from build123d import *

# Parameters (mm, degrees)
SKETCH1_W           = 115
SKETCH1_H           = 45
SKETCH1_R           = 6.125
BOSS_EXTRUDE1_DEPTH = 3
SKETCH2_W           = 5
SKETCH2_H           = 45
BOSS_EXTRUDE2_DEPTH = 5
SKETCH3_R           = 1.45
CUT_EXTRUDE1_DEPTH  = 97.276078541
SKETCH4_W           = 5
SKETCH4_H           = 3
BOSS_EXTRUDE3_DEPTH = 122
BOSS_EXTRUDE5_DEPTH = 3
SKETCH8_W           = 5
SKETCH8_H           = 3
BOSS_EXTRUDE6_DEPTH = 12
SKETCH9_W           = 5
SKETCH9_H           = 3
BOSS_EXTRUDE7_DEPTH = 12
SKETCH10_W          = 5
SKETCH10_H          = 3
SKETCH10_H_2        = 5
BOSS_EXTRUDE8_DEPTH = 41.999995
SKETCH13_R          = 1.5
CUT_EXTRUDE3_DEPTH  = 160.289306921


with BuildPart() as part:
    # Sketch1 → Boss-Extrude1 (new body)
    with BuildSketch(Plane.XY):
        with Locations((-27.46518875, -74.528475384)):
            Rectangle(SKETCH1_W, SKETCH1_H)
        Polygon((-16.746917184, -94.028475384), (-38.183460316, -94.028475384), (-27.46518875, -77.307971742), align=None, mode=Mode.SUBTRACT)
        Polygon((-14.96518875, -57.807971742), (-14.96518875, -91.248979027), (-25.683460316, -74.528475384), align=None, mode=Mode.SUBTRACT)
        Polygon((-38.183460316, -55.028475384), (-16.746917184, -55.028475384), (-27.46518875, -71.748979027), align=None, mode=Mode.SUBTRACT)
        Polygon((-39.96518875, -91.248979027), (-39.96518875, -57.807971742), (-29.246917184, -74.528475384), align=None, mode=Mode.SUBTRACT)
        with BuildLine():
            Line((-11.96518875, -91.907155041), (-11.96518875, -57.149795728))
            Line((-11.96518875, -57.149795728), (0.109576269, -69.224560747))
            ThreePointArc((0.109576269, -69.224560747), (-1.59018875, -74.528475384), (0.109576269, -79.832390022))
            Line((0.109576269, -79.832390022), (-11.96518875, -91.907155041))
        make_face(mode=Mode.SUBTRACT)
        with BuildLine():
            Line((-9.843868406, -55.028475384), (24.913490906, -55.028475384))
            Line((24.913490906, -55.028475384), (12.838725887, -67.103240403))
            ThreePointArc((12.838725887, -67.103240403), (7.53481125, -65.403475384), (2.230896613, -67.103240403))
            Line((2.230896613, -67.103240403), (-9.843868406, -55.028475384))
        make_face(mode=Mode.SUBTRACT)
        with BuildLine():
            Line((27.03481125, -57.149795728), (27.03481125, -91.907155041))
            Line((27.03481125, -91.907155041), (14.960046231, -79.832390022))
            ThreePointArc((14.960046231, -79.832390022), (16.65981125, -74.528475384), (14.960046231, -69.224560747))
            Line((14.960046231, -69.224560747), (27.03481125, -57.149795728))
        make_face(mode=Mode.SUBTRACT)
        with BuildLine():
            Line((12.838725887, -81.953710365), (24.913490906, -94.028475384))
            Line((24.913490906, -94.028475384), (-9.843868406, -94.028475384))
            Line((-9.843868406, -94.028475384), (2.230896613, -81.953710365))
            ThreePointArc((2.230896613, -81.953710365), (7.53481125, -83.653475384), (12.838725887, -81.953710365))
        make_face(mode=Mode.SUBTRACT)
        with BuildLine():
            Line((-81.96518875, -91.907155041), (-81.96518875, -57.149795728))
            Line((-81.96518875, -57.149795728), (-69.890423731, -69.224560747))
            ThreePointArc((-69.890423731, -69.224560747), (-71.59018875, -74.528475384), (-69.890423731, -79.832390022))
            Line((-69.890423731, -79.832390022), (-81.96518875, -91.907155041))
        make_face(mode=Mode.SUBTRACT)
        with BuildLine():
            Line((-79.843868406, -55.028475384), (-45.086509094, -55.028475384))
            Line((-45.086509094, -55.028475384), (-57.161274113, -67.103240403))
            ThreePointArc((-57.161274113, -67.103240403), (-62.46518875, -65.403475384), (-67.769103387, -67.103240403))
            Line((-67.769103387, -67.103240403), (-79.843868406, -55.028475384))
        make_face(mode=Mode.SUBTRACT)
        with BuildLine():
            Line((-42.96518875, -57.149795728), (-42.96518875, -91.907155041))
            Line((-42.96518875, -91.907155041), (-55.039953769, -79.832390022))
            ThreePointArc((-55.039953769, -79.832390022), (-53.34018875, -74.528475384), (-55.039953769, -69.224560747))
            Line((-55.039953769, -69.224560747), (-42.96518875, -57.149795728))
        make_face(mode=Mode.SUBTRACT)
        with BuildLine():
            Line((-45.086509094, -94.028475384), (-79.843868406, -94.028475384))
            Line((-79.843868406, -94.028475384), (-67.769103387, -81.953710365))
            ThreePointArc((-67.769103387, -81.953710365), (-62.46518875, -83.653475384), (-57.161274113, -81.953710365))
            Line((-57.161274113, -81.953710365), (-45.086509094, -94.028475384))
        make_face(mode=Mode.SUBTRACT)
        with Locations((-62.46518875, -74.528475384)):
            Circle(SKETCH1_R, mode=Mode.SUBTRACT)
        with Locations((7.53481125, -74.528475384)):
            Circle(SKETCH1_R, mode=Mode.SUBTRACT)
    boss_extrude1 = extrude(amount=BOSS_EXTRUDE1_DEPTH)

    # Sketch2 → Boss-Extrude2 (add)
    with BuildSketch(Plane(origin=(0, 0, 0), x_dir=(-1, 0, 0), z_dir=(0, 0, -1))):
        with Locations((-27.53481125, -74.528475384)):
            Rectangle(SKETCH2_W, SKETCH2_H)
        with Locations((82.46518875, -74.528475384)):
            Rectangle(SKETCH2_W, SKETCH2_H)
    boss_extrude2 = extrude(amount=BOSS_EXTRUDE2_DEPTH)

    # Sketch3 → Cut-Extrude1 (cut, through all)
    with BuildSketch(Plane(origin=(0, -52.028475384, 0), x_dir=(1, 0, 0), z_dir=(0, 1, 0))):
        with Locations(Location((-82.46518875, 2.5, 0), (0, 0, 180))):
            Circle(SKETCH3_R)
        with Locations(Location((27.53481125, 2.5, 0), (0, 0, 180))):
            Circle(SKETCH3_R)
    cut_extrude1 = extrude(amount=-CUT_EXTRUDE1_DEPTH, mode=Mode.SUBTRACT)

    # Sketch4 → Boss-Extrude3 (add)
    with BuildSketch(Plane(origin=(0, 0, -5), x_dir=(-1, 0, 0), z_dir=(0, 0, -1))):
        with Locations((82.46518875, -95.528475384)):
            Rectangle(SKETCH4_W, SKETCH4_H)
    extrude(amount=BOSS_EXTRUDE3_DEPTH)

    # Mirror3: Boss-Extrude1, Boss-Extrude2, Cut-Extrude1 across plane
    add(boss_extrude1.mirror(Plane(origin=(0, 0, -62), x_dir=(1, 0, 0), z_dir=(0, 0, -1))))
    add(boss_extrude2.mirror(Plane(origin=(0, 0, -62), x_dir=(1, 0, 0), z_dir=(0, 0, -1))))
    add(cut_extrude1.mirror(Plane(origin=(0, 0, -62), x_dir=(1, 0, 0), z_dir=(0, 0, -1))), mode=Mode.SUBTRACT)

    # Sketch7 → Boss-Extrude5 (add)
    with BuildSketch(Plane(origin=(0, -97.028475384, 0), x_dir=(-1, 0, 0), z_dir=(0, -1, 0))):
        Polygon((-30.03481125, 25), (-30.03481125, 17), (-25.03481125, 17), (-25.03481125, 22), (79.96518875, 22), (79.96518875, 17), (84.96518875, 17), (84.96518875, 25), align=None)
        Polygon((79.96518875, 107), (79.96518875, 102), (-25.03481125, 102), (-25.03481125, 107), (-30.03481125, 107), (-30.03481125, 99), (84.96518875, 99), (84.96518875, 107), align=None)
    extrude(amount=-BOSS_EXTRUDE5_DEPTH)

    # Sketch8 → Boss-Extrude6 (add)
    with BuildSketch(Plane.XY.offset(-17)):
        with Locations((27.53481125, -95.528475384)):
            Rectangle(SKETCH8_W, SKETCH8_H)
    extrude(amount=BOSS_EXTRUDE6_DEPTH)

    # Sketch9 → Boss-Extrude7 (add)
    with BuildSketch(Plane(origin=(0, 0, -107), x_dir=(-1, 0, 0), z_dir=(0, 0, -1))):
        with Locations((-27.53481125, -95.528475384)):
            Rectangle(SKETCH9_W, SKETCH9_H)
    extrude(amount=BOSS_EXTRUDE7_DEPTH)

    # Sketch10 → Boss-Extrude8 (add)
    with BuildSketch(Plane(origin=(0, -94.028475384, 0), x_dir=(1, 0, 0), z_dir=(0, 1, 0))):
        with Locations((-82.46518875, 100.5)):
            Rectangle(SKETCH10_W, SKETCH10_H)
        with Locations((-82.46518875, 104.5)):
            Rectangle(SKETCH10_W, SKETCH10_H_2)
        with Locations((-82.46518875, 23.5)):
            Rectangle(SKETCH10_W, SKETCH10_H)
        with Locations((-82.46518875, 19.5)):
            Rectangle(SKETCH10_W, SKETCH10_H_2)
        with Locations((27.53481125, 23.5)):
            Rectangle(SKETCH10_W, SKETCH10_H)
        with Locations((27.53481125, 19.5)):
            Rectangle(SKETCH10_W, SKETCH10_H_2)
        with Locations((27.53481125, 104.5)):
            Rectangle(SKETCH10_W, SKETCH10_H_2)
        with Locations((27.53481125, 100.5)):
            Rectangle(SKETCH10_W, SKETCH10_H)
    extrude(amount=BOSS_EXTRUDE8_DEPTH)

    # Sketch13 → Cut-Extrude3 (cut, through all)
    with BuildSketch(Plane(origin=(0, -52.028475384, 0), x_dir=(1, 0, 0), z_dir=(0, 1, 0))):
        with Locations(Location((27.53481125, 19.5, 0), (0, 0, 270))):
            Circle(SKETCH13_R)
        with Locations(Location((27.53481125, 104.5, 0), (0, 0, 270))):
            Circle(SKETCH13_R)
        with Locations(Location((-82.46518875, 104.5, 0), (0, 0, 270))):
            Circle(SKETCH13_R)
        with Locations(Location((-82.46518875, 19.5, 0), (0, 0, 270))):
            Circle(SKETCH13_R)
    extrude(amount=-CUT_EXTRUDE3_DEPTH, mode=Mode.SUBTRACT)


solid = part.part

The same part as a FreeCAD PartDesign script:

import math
import FreeCAD as App
import Part
import Sketcher

V = App.Vector


def add_polygon(sketch, points):
    """Adds a closed chain of lines whose ends are joined by coincident constraints."""
    first, n = sketch.GeometryCount, len(points)
    for a, b in zip(points, points[1:] + points[:1]):
        sketch.addGeometry(Part.LineSegment(App.Vector(*a, 0), App.Vector(*b, 0)), False)
    for i in range(n):
        sketch.addConstraint(Sketcher.Constraint("Coincident", first + i, 2, first + (i + 1) % n, 1))

doc = App.newDocument("Part")
body = doc.addObject("PartDesign::Body", "Body")

sketch1 = doc.addObject("Sketcher::SketchObject", "Sketch")
body.addObject(sketch1)
sketch1.AttachmentSupport = (doc.XY_Plane, [""])
sketch1.MapMode = "FlatFace"
add_polygon(sketch1, [(-85, -52), (-85, -97), (30, -97), (30, -52)])
sketch1.addGeometry(Part.LineSegment(V(-57, -82, 0), V(-45, -94, 0)), False)
sketch1.addGeometry(Part.LineSegment(V(-45, -94, 0), V(-80, -94, 0)), False)
sketch1.addGeometry(Part.LineSegment(V(-80, -94, 0), V(-68, -82, 0)), False)
sketch1.addGeometry(Part.ArcOfCircle(Part.Circle(V(-62, -75, 0), V(0, 0, 1), 9), math.radians(-126), math.radians(-54)), False)
sketch1.addGeometry(Part.LineSegment(V(-70, -80, 0), V(-82, -92, 0)), False)
sketch1.addGeometry(Part.LineSegment(V(-82, -92, 0), V(-82, -57, 0)), False)
sketch1.addGeometry(Part.LineSegment(V(-82, -57, 0), V(-70, -69, 0)), False)
sketch1.addGeometry(Part.ArcOfCircle(Part.Circle(V(-62, -75, 0), V(0, 0, 1), 9), math.radians(144), math.radians(216)), False)
sketch1.addGeometry(Part.Circle(V(-62, -75, 0), V(0, 0, 1), 6), False)
sketch1.addGeometry(Part.LineSegment(V(-55, -69, 0), V(-43, -57, 0)), False)
sketch1.addGeometry(Part.LineSegment(V(-43, -57, 0), V(-43, -92, 0)), False)
sketch1.addGeometry(Part.LineSegment(V(-43, -92, 0), V(-55, -80, 0)), False)
sketch1.addGeometry(Part.ArcOfCircle(Part.Circle(V(-62, -75, 0), V(0, 0, 1), 9), math.radians(-36), math.radians(36)), False)
add_polygon(sketch1, [(-29, -75), (-40, -91), (-40, -58)])
add_polygon(sketch1, [(-27, -77), (-17, -94), (-38, -94)])
sketch1.addGeometry(Part.ArcOfCircle(Part.Circle(V(8, -75, 0), V(0, 0, 1), 9), math.radians(-126), math.radians(-54)), False)
sketch1.addGeometry(Part.LineSegment(V(13, -82, 0), V(25, -94, 0)), False)
sketch1.addGeometry(Part.LineSegment(V(25, -94, 0), V(-10, -94, 0)), False)
sketch1.addGeometry(Part.LineSegment(V(-10, -94, 0), V(2, -82, 0)), False)
add_polygon(sketch1, [(-26, -75), (-15, -58), (-15, -91)])
sketch1.addGeometry(Part.LineSegment(V(0, -80, 0), V(-12, -92, 0)), False)
sketch1.addGeometry(Part.LineSegment(V(-12, -92, 0), V(-12, -57, 0)), False)
sketch1.addGeometry(Part.LineSegment(V(-12, -57, 0), V(0, -69, 0)), False)
sketch1.addGeometry(Part.ArcOfCircle(Part.Circle(V(8, -75, 0), V(0, 0, 1), 9), math.radians(144), math.radians(216)), False)
sketch1.addGeometry(Part.Circle(V(8, -75, 0), V(0, 0, 1), 6), False)
sketch1.addGeometry(Part.LineSegment(V(15, -69, 0), V(27, -57, 0)), False)
sketch1.addGeometry(Part.LineSegment(V(27, -57, 0), V(27, -92, 0)), False)
sketch1.addGeometry(Part.LineSegment(V(27, -92, 0), V(15, -80, 0)), False)
sketch1.addGeometry(Part.ArcOfCircle(Part.Circle(V(8, -75, 0), V(0, 0, 1), 9), math.radians(-36), math.radians(36)), False)
sketch1.addGeometry(Part.LineSegment(V(-68, -67, 0), V(-80, -55, 0)), False)
sketch1.addGeometry(Part.LineSegment(V(-80, -55, 0), V(-45, -55, 0)), False)
sketch1.addGeometry(Part.LineSegment(V(-45, -55, 0), V(-57, -67, 0)), False)
sketch1.addGeometry(Part.ArcOfCircle(Part.Circle(V(-62, -75, 0), V(0, 0, 1), 9), math.radians(54), math.radians(126)), False)
add_polygon(sketch1, [(-27, -72), (-38, -55), (-17, -55)])
sketch1.addGeometry(Part.LineSegment(V(2, -67, 0), V(-10, -55, 0)), False)
sketch1.addGeometry(Part.LineSegment(V(-10, -55, 0), V(25, -55, 0)), False)
sketch1.addGeometry(Part.LineSegment(V(25, -55, 0), V(13, -67, 0)), False)
sketch1.addGeometry(Part.ArcOfCircle(Part.Circle(V(8, -75, 0), V(0, 0, 1), 9), math.radians(54), math.radians(126)), False)
sketch1.addConstraint(Sketcher.Constraint("Coincident", 4, 2, 5, 1))
sketch1.addConstraint(Sketcher.Constraint("Coincident", 5, 2, 6, 1))
sketch1.addConstraint(Sketcher.Constraint("Coincident", 6, 2, 7, 1))
sketch1.addConstraint(Sketcher.Constraint("Coincident", 7, 2, 4, 1))
sketch1.addConstraint(Sketcher.Constraint("Coincident", 8, 2, 9, 1))
sketch1.addConstraint(Sketcher.Constraint("Coincident", 9, 2, 10, 1))
sketch1.addConstraint(Sketcher.Constraint("Coincident", 10, 2, 11, 1))
sketch1.addConstraint(Sketcher.Constraint("Coincident", 11, 2, 8, 1))
sketch1.addConstraint(Sketcher.Constraint("Coincident", 13, 2, 14, 1))
sketch1.addConstraint(Sketcher.Constraint("Coincident", 14, 2, 15, 1))
sketch1.addConstraint(Sketcher.Constraint("Coincident", 15, 2, 16, 1))
sketch1.addConstraint(Sketcher.Constraint("Coincident", 16, 2, 13, 1))
sketch1.addConstraint(Sketcher.Constraint("Coincident", 23, 2, 24, 1))
sketch1.addConstraint(Sketcher.Constraint("Coincident", 24, 2, 25, 1))
sketch1.addConstraint(Sketcher.Constraint("Coincident", 25, 2, 26, 1))
sketch1.addConstraint(Sketcher.Constraint("Coincident", 26, 2, 23, 1))
sketch1.addConstraint(Sketcher.Constraint("Coincident", 30, 2, 31, 1))
sketch1.addConstraint(Sketcher.Constraint("Coincident", 31, 2, 32, 1))
sketch1.addConstraint(Sketcher.Constraint("Coincident", 32, 2, 33, 1))
sketch1.addConstraint(Sketcher.Constraint("Coincident", 33, 2, 30, 1))
sketch1.addConstraint(Sketcher.Constraint("Coincident", 35, 2, 36, 1))
sketch1.addConstraint(Sketcher.Constraint("Coincident", 36, 2, 37, 1))
sketch1.addConstraint(Sketcher.Constraint("Coincident", 37, 2, 38, 1))
sketch1.addConstraint(Sketcher.Constraint("Coincident", 38, 2, 35, 1))
sketch1.addConstraint(Sketcher.Constraint("Coincident", 39, 2, 40, 1))
sketch1.addConstraint(Sketcher.Constraint("Coincident", 40, 2, 41, 1))
sketch1.addConstraint(Sketcher.Constraint("Coincident", 41, 2, 42, 1))
sketch1.addConstraint(Sketcher.Constraint("Coincident", 42, 2, 39, 1))
sketch1.addConstraint(Sketcher.Constraint("Coincident", 46, 2, 47, 1))
sketch1.addConstraint(Sketcher.Constraint("Coincident", 47, 2, 48, 1))
sketch1.addConstraint(Sketcher.Constraint("Coincident", 48, 2, 49, 1))
sketch1.addConstraint(Sketcher.Constraint("Coincident", 49, 2, 46, 1))
sketch1.addConstraint(Sketcher.Constraint("Vertical", 0))
sketch1.addConstraint(Sketcher.Constraint("Horizontal", 1))
sketch1.addConstraint(Sketcher.Constraint("Vertical", 2))
sketch1.addConstraint(Sketcher.Constraint("Horizontal", 3))
sketch1.addConstraint(Sketcher.Constraint("Horizontal", 5))
sketch1.addConstraint(Sketcher.Constraint("Vertical", 9))
sketch1.addConstraint(Sketcher.Constraint("Vertical", 14))
sketch1.addConstraint(Sketcher.Constraint("Vertical", 18))
sketch1.addConstraint(Sketcher.Constraint("Horizontal", 21))
sketch1.addConstraint(Sketcher.Constraint("Horizontal", 25))
sketch1.addConstraint(Sketcher.Constraint("Vertical", 28))
sketch1.addConstraint(Sketcher.Constraint("Vertical", 31))
sketch1.addConstraint(Sketcher.Constraint("Vertical", 36))
sketch1.addConstraint(Sketcher.Constraint("Horizontal", 40))
sketch1.addConstraint(Sketcher.Constraint("Horizontal", 44))
sketch1.addConstraint(Sketcher.Constraint("Horizontal", 47))
sketch1.addConstraint(Sketcher.Constraint("Coincident", 11, 3, 7, 3))
sketch1.addConstraint(Sketcher.Constraint("Coincident", 12, 3, 7, 3))
sketch1.addConstraint(Sketcher.Constraint("Coincident", 16, 3, 7, 3))
sketch1.addConstraint(Sketcher.Constraint("Coincident", 33, 3, 23, 3))
sketch1.addConstraint(Sketcher.Constraint("Coincident", 34, 3, 23, 3))
sketch1.addConstraint(Sketcher.Constraint("Coincident", 38, 3, 23, 3))
sketch1.addConstraint(Sketcher.Constraint("Coincident", 42, 3, 7, 3))
sketch1.addConstraint(Sketcher.Constraint("Coincident", 49, 3, 23, 3))
sketch1.addConstraint(Sketcher.Constraint("Equal", 7, 11))
sketch1.addConstraint(Sketcher.Constraint("Equal", 11, 16))
sketch1.addConstraint(Sketcher.Constraint("Equal", 16, 23))
sketch1.addConstraint(Sketcher.Constraint("Equal", 23, 33))
sketch1.addConstraint(Sketcher.Constraint("Equal", 12, 34))
sketch1.addConstraint(Sketcher.Constraint("Equal", 33, 38))
sketch1.addConstraint(Sketcher.Constraint("Equal", 38, 42))
sketch1.addConstraint(Sketcher.Constraint("Equal", 42, 49))
sketch1.addConstraint(Sketcher.Constraint("Perpendicular", 4, 6))
sketch1.addConstraint(Sketcher.Constraint("Parallel", 6, 8))
sketch1.addConstraint(Sketcher.Constraint("Perpendicular", 8, 10))
sketch1.addConstraint(Sketcher.Constraint("Perpendicular", 10, 13))
sketch1.addConstraint(Sketcher.Constraint("Perpendicular", 13, 15))
sketch1.addConstraint(Sketcher.Constraint("Parallel", 19, 20))
sketch1.addConstraint(Sketcher.Constraint("Parallel", 17, 22))
sketch1.addConstraint(Sketcher.Constraint("Parallel", 15, 24))
sketch1.addConstraint(Sketcher.Constraint("Perpendicular", 24, 26))
sketch1.addConstraint(Sketcher.Constraint("Parallel", 22, 27))
sketch1.addConstraint(Sketcher.Constraint("Parallel", 20, 29))
sketch1.addConstraint(Sketcher.Constraint("Parallel", 26, 30))
sketch1.addConstraint(Sketcher.Constraint("Perpendicular", 30, 32))
sketch1.addConstraint(Sketcher.Constraint("Perpendicular", 32, 35))
sketch1.addConstraint(Sketcher.Constraint("Perpendicular", 35, 37))
sketch1.addConstraint(Sketcher.Constraint("Parallel", 37, 39))
sketch1.addConstraint(Sketcher.Constraint("Perpendicular", 39, 41))
sketch1.addConstraint(Sketcher.Constraint("Parallel", 29, 43))
sketch1.addConstraint(Sketcher.Constraint("Parallel", 27, 45))
sketch1.addConstraint(Sketcher.Constraint("Perpendicular", 41, 46))
sketch1.addConstraint(Sketcher.Constraint("Perpendicular", 46, 48))
sketch1.addConstraint(Sketcher.Constraint("Horizontal", 16, 3, 23, 3))
sketch1.addConstraint(Sketcher.Constraint("Horizontal", 6, 2, 7, 2))
sketch1.addConstraint(Sketcher.Constraint("Horizontal", 9, 2, 13, 2))
sketch1.addConstraint(Sketcher.Constraint("Horizontal", 8, 2, 14, 2))
sketch1.addConstraint(Sketcher.Constraint("Horizontal", 11, 2, 15, 2))
sketch1.addConstraint(Sketcher.Constraint("Horizontal", 10, 2, 16, 2))
sketch1.addConstraint(Sketcher.Constraint("Horizontal", 49, 3, 19, 2))
sketch1.addConstraint(Sketcher.Constraint("Horizontal", 5, 2, 20, 2))
sketch1.addConstraint(Sketcher.Constraint("Horizontal", 7, 2, 23, 2))
sketch1.addConstraint(Sketcher.Constraint("Horizontal", 21, 2, 24, 2))
sketch1.addConstraint(Sketcher.Constraint("Horizontal", 23, 2, 26, 2))
sketch1.addConstraint(Sketcher.Constraint("Horizontal", 18, 2, 27, 2))
sketch1.addConstraint(Sketcher.Constraint("Horizontal", 17, 2, 28, 2))
sketch1.addConstraint(Sketcher.Constraint("Horizontal", 19, 2, 29, 2))
sketch1.addConstraint(Sketcher.Constraint("Horizontal", 14, 2, 30, 2))
sketch1.addConstraint(Sketcher.Constraint("Horizontal", 13, 2, 31, 2))
sketch1.addConstraint(Sketcher.Constraint("Horizontal", 16, 2, 32, 2))
sketch1.addConstraint(Sketcher.Constraint("Horizontal", 31, 2, 35, 2))
sketch1.addConstraint(Sketcher.Constraint("Horizontal", 30, 2, 36, 2))
sketch1.addConstraint(Sketcher.Constraint("Horizontal", 33, 2, 37, 2))
sketch1.addConstraint(Sketcher.Constraint("Horizontal", 41, 2, 42, 2))
sketch1.addConstraint(Sketcher.Constraint("Horizontal", 40, 2, 43, 2))
sketch1.addConstraint(Sketcher.Constraint("Horizontal", 44, 2, 46, 2))
sketch1.addConstraint(Sketcher.Constraint("Horizontal", 42, 2, 48, 2))
sketch1.addConstraint(Sketcher.Constraint("Horizontal", 48, 2, 49, 2))
sketch1.addConstraint(Sketcher.Constraint("Vertical", 10, 2, 11, 2))
sketch1.addConstraint(Sketcher.Constraint("Vertical", 5, 2, 39, 2))
sketch1.addConstraint(Sketcher.Constraint("Vertical", 7, 2, 41, 2))
sketch1.addConstraint(Sketcher.Constraint("Vertical", 21, 2, 43, 2))
sketch1.addConstraint(Sketcher.Constraint("Vertical", 20, 2, 44, 2))
sketch1.addConstraint(Sketcher.Constraint("Equal", 47, 9))
sketch1.addConstraint(Sketcher.Constraint("Equal", 6, 8))
sketch1.addConstraint(Sketcher.Constraint("Equal", 19, 20))
sketch1.addConstraint(Sketcher.Constraint("Diameter", 12, 12.25))
sketch1.addConstraint(Sketcher.Constraint("DistanceX", 1, 1, 1, 2, 115.0))
sketch1.addConstraint(Sketcher.Constraint("DistanceY", 0, 2, 0, 1, 45.0))
sketch1.addConstraint(Sketcher.Constraint("Radius", 7, 9.125))
sketch1.addConstraint(Sketcher.Constraint("DistanceX", 11, 3, 23, 3, 70.0))
sketch1.addConstraint(Sketcher.Constraint("DistanceY", 0, 2, 5, 2, 3.0))
sketch1.addConstraint(Sketcher.Constraint("DistanceX", 0, 2, 8, 2, 3.0))
sketch1.addConstraint(Sketcher.Constraint("DistanceX", 14, 2, 17, 2, 3.0))
sketch1.addConstraint(Sketcher.Constraint("DistanceX", 18, 2, 27, 2, 25.0))
sketch1.addConstraint(Sketcher.Constraint("DistanceX", 28, 2, 30, 2, 3.0))
sketch1.addConstraint(Sketcher.Constraint("DistanceX", 19, 2, 20, 2, 12.5))
sketch1.addConstraint(Sketcher.Constraint("DistanceX", 5, 2, 5, 1, 34.757359))
sketch1.addConstraint(Sketcher.Constraint("Distance", 17, 19.860931))
sketch1.addConstraint(Sketcher.Constraint("DistanceX", 21, 2, 21, 1, 21.436543))
sketch1.addConstraint(Sketcher.Constraint("DistanceX", 7, 3, -1, 1, 62.465189))
sketch1.addConstraint(Sketcher.Constraint("DistanceY", 6, 2, -1, 1, 81.95371))
pad1 = doc.addObject("PartDesign::Pad", "Pad")
body.addObject(pad1)
pad1.Profile = sketch1
pad1.Length = 3

sketch2 = doc.addObject("Sketcher::SketchObject", "Sketch001")
body.addObject(sketch2)
sketch2.AttachmentSupport = (doc.XY_Plane, [""])
sketch2.MapMode = "FlatFace"
add_polygon(sketch2, [(30, -52), (30, -97), (25, -97), (25, -52)])
add_polygon(sketch2, [(-80, -52), (-80, -97), (-85, -97), (-85, -52)])
sketch2.addConstraint(Sketcher.Constraint("Vertical", 0))
sketch2.addConstraint(Sketcher.Constraint("Horizontal", 1))
sketch2.addConstraint(Sketcher.Constraint("Vertical", 2))
sketch2.addConstraint(Sketcher.Constraint("Horizontal", 3))
sketch2.addConstraint(Sketcher.Constraint("Vertical", 4))
sketch2.addConstraint(Sketcher.Constraint("Horizontal", 5))
sketch2.addConstraint(Sketcher.Constraint("Vertical", 6))
sketch2.addConstraint(Sketcher.Constraint("Horizontal", 7))
sketch2.addConstraint(Sketcher.Constraint("Horizontal", 1, 2, 4, 2))
sketch2.addConstraint(Sketcher.Constraint("Horizontal", 3, 2, 6, 2))
sketch2.addConstraint(Sketcher.Constraint("Equal", 3, 5))
sketch2.addConstraint(Sketcher.Constraint("DistanceX", 1, 2, 1, 1, 5.0))
sketch2.addConstraint(Sketcher.Constraint("DistanceY", 0, 2, 0, 1, 45.0))
sketch2.addConstraint(Sketcher.Constraint("DistanceX", 4, 2, 1, 2, 105.0))
sketch2.addConstraint(Sketcher.Constraint("DistanceX", -1, 1, 0, 2, 30.034811))
sketch2.addConstraint(Sketcher.Constraint("DistanceY", 0, 2, -1, 1, 97.028475))
pad2 = doc.addObject("PartDesign::Pad", "Pad001")
body.addObject(pad2)
pad2.Profile = sketch2
pad2.Length = 5
pad2.Reversed = True

sketch3 = doc.addObject("Sketcher::SketchObject", "Sketch002")
body.addObject(sketch3)
sketch3.AttachmentSupport = (doc.XZ_Plane, [""])
sketch3.MapMode = "FlatFace"
sketch3.AttachmentOffset = App.Placement(V(0, 0, 52.028475), App.Rotation())
sketch3.addGeometry(Part.Circle(V(-82.5, -2.5, 0), V(0, 0, 1), 1.4), False)
sketch3.addGeometry(Part.Circle(V(27.5, -2.5, 0), V(0, 0, 1), 1.4), False)
sketch3.addConstraint(Sketcher.Constraint("Equal", 0, 1))
sketch3.addConstraint(Sketcher.Constraint("Horizontal", 0, 3, 1, 3))
sketch3.addConstraint(Sketcher.Constraint("Diameter", 0, 2.9))
sketch3.addConstraint(Sketcher.Constraint("DistanceX", 0, 3, 1, 3, 110.0))
sketch3.addConstraint(Sketcher.Constraint("DistanceY", 0, 3, -1, 1, 2.5))
sketch3.addConstraint(Sketcher.Constraint("DistanceX", 0, 3, -1, 1, 82.465189))
pocket1 = doc.addObject("PartDesign::Pocket", "Pocket")
body.addObject(pocket1)
pocket1.Profile = sketch3
pocket1.Type = "ThroughAll"
pocket1.Reversed = True

sketch4 = doc.addObject("Sketcher::SketchObject", "Sketch003")
body.addObject(sketch4)
sketch4.AttachmentSupport = (doc.XY_Plane, [""])
sketch4.MapMode = "FlatFace"
sketch4.AttachmentOffset = App.Placement(V(0, 0, -5), App.Rotation())
add_polygon(sketch4, [(-80, -94), (-80, -97), (-85, -97), (-85, -94)])
sketch4.addConstraint(Sketcher.Constraint("Vertical", 0))
sketch4.addConstraint(Sketcher.Constraint("Horizontal", 1))
sketch4.addConstraint(Sketcher.Constraint("Vertical", 2))
sketch4.addConstraint(Sketcher.Constraint("Horizontal", 3))
sketch4.addConstraint(Sketcher.Constraint("DistanceX", 1, 2, 1, 1, 5.0))
sketch4.addConstraint(Sketcher.Constraint("DistanceY", 0, 2, 0, 1, 3.0))
sketch4.addConstraint(Sketcher.Constraint("DistanceX", 0, 2, -1, 1, 79.965189))
sketch4.addConstraint(Sketcher.Constraint("DistanceY", 0, 2, -1, 1, 97.028475))
pad3 = doc.addObject("PartDesign::Pad", "Pad002")
body.addObject(pad3)
pad3.Profile = sketch4
pad3.Length = 122
pad3.Reversed = True
doc.recompute()

datumplane = doc.addObject("PartDesign::Plane", "DatumPlane")
body.addObject(datumplane)
datumplane.AttachmentSupport = (doc.XY_Plane, [""])
datumplane.MapMode = "FlatFace"
datumplane.AttachmentOffset = App.Placement(V(0, 0, -62), App.Rotation())
mirrored = doc.addObject("PartDesign::Mirrored", "Mirrored")
body.addObject(mirrored)
mirrored.Originals = [pad1, pad2, pocket1]
mirrored.MirrorPlane = (datumplane, [""])
body.Tip = mirrored

sketch5 = doc.addObject("Sketcher::SketchObject", "Sketch004")
body.addObject(sketch5)
sketch5.AttachmentSupport = (doc.XZ_Plane, [""])
sketch5.MapMode = "FlatFace"
sketch5.AttachmentOffset = App.Placement(V(0, 0, 97.028475), App.Rotation())
add_polygon(sketch5, [(30, -25), (30, -17), (25, -17), (25, -22), (-80, -22), (-80, -17), (-85, -17), (-85, -25)])
add_polygon(sketch5, [(-80, -107), (-80, -102), (25, -102), (25, -107), (30, -107), (30, -99), (-85, -99), (-85, -107)])
sketch5.addConstraint(Sketcher.Constraint("Vertical", 0))
sketch5.addConstraint(Sketcher.Constraint("Horizontal", 1))
sketch5.addConstraint(Sketcher.Constraint("Vertical", 2))
sketch5.addConstraint(Sketcher.Constraint("Horizontal", 3))
sketch5.addConstraint(Sketcher.Constraint("Vertical", 4))
sketch5.addConstraint(Sketcher.Constraint("Horizontal", 5))
sketch5.addConstraint(Sketcher.Constraint("Vertical", 6))
sketch5.addConstraint(Sketcher.Constraint("Horizontal", 7))
sketch5.addConstraint(Sketcher.Constraint("Vertical", 8))
sketch5.addConstraint(Sketcher.Constraint("Horizontal", 9))
sketch5.addConstraint(Sketcher.Constraint("Vertical", 10))
sketch5.addConstraint(Sketcher.Constraint("Horizontal", 11))
sketch5.addConstraint(Sketcher.Constraint("Vertical", 12))
sketch5.addConstraint(Sketcher.Constraint("Horizontal", 13))
sketch5.addConstraint(Sketcher.Constraint("Vertical", 14))
sketch5.addConstraint(Sketcher.Constraint("Horizontal", 15))
sketch5.addConstraint(Sketcher.Constraint("Horizontal", 1, 2, 4, 2))
sketch5.addConstraint(Sketcher.Constraint("Horizontal", 11, 2, 14, 2))
sketch5.addConstraint(Sketcher.Constraint("Vertical", 4, 2, 8, 2))
sketch5.addConstraint(Sketcher.Constraint("Vertical", 2, 2, 9, 2))
sketch5.addConstraint(Sketcher.Constraint("Vertical", 7, 2, 11, 2))
sketch5.addConstraint(Sketcher.Constraint("Vertical", 6, 2, 13, 2))
sketch5.addConstraint(Sketcher.Constraint("Equal", 1, 5))
sketch5.addConstraint(Sketcher.Constraint("Equal", 15, 2))
sketch5.addConstraint(Sketcher.Constraint("Equal", 4, 8))
sketch5.addConstraint(Sketcher.Constraint("Equal", 6, 12))
sketch5.addConstraint(Sketcher.Constraint("DistanceX", 1, 2, 1, 1, 5.0))
sketch5.addConstraint(Sketcher.Constraint("DistanceX", 3, 2, 3, 1, 105.0))
sketch5.addConstraint(Sketcher.Constraint("DistanceY", 0, 1, 0, 2, 8.0))
sketch5.addConstraint(Sketcher.Constraint("DistanceY", 0, 2, -1, 1, 17.0))
sketch5.addConstraint(Sketcher.Constraint("DistanceY", 8, 2, -1, 1, 102.0))
sketch5.addConstraint(Sketcher.Constraint("DistanceX", -1, 1, 0, 2, 30.034811))
pad4 = doc.addObject("PartDesign::Pad", "Pad003")
body.addObject(pad4)
pad4.Profile = sketch5
pad4.Length = 3
pad4.Reversed = True

sketch6 = doc.addObject("Sketcher::SketchObject", "Sketch005")
body.addObject(sketch6)
sketch6.AttachmentSupport = (doc.XY_Plane, [""])
sketch6.MapMode = "FlatFace"
sketch6.AttachmentOffset = App.Placement(V(0, 0, -17), App.Rotation())
add_polygon(sketch6, [(25, -94), (25, -97), (30, -97), (30, -94)])
sketch6.addConstraint(Sketcher.Constraint("Vertical", 0))
sketch6.addConstraint(Sketcher.Constraint("Horizontal", 1))
sketch6.addConstraint(Sketcher.Constraint("Vertical", 2))
sketch6.addConstraint(Sketcher.Constraint("Horizontal", 3))
sketch6.addConstraint(Sketcher.Constraint("DistanceX", 1, 1, 1, 2, 5.0))
sketch6.addConstraint(Sketcher.Constraint("DistanceY", 0, 2, 0, 1, 3.0))
sketch6.addConstraint(Sketcher.Constraint("DistanceX", -1, 1, 0, 2, 25.034811))
sketch6.addConstraint(Sketcher.Constraint("DistanceY", 0, 2, -1, 1, 97.028475))
pad5 = doc.addObject("PartDesign::Pad", "Pad004")
body.addObject(pad5)
pad5.Profile = sketch6
pad5.Length = 12

sketch7 = doc.addObject("Sketcher::SketchObject", "Sketch006")
body.addObject(sketch7)
sketch7.AttachmentSupport = (doc.XY_Plane, [""])
sketch7.MapMode = "FlatFace"
sketch7.AttachmentOffset = App.Placement(V(0, 0, -107), App.Rotation())
add_polygon(sketch7, [(30, -94), (30, -97), (25, -97), (25, -94)])
sketch7.addConstraint(Sketcher.Constraint("Vertical", 0))
sketch7.addConstraint(Sketcher.Constraint("Horizontal", 1))
sketch7.addConstraint(Sketcher.Constraint("Vertical", 2))
sketch7.addConstraint(Sketcher.Constraint("Horizontal", 3))
sketch7.addConstraint(Sketcher.Constraint("DistanceX", 1, 2, 1, 1, 5.0))
sketch7.addConstraint(Sketcher.Constraint("DistanceY", 0, 2, 0, 1, 3.0))
sketch7.addConstraint(Sketcher.Constraint("DistanceX", -1, 1, 0, 2, 30.034811))
sketch7.addConstraint(Sketcher.Constraint("DistanceY", 0, 2, -1, 1, 97.028475))
pad6 = doc.addObject("PartDesign::Pad", "Pad005")
body.addObject(pad6)
pad6.Profile = sketch7
pad6.Length = 12
pad6.Reversed = True

sketch8 = doc.addObject("Sketcher::SketchObject", "Sketch007")
body.addObject(sketch8)
sketch8.AttachmentSupport = (doc.XZ_Plane, [""])
sketch8.MapMode = "FlatFace"
sketch8.AttachmentOffset = App.Placement(V(0, 0, 94.028475), App.Rotation())
add_polygon(sketch8, [(-85, -99), (-80, -99), (-80, -107), (-85, -107)])
add_polygon(sketch8, [(-85, -25), (-85, -17), (-80, -17), (-80, -25)])
add_polygon(sketch8, [(25, -25), (25, -17), (30, -17), (30, -25)])
add_polygon(sketch8, [(25, -107), (25, -99), (30, -99), (30, -107)])
sketch8.addConstraint(Sketcher.Constraint("Horizontal", 0))
sketch8.addConstraint(Sketcher.Constraint("Vertical", 1))
sketch8.addConstraint(Sketcher.Constraint("Horizontal", 2))
sketch8.addConstraint(Sketcher.Constraint("Vertical", 3))
sketch8.addConstraint(Sketcher.Constraint("Vertical", 4))
sketch8.addConstraint(Sketcher.Constraint("Horizontal", 5))
sketch8.addConstraint(Sketcher.Constraint("Vertical", 6))
sketch8.addConstraint(Sketcher.Constraint("Horizontal", 7))
sketch8.addConstraint(Sketcher.Constraint("Vertical", 8))
sketch8.addConstraint(Sketcher.Constraint("Horizontal", 9))
sketch8.addConstraint(Sketcher.Constraint("Vertical", 10))
sketch8.addConstraint(Sketcher.Constraint("Horizontal", 11))
sketch8.addConstraint(Sketcher.Constraint("Vertical", 12))
sketch8.addConstraint(Sketcher.Constraint("Horizontal", 13))
sketch8.addConstraint(Sketcher.Constraint("Vertical", 14))
sketch8.addConstraint(Sketcher.Constraint("Horizontal", 15))
sketch8.addConstraint(Sketcher.Constraint("Horizontal", 5, 2, 8, 2))
sketch8.addConstraint(Sketcher.Constraint("Horizontal", 7, 2, 10, 2))
sketch8.addConstraint(Sketcher.Constraint("Horizontal", 3, 2, 12, 2))
sketch8.addConstraint(Sketcher.Constraint("Horizontal", 2, 2, 14, 2))
sketch8.addConstraint(Sketcher.Constraint("Vertical", 3, 2, 4, 2))
sketch8.addConstraint(Sketcher.Constraint("Vertical", 1, 2, 5, 2))
sketch8.addConstraint(Sketcher.Constraint("Vertical", 11, 2, 12, 2))
sketch8.addConstraint(Sketcher.Constraint("Vertical", 10, 2, 13, 2))
sketch8.addConstraint(Sketcher.Constraint("Equal", 7, 9))
sketch8.addConstraint(Sketcher.Constraint("Equal", 3, 4))
sketch8.addConstraint(Sketcher.Constraint("DistanceX", 0, 1, 0, 2, 5.0))
sketch8.addConstraint(Sketcher.Constraint("DistanceY", 1, 2, 1, 1, 8.0))
sketch8.addConstraint(Sketcher.Constraint("DistanceY", 0, 2, -1, 1, 99.0))
sketch8.addConstraint(Sketcher.Constraint("DistanceY", 4, 2, -1, 1, 17.0))
sketch8.addConstraint(Sketcher.Constraint("DistanceX", 5, 2, 8, 2, 105.0))
sketch8.addConstraint(Sketcher.Constraint("DistanceX", 0, 2, -1, 1, 79.965189))
pad7 = doc.addObject("PartDesign::Pad", "Pad006")
body.addObject(pad7)
pad7.Profile = sketch8
pad7.Length = 41.999995
pad7.Reversed = True

sketch9 = doc.addObject("Sketcher::SketchObject", "Sketch008")
body.addObject(sketch9)
sketch9.AttachmentSupport = (doc.XZ_Plane, [""])
sketch9.MapMode = "FlatFace"
sketch9.AttachmentOffset = App.Placement(V(0, 0, 52.028475), App.Rotation())
sketch9.addGeometry(Part.Circle(V(27.5, -19.5, 0), V(0, 0, 1), 1.5), False)
sketch9.addGeometry(Part.Circle(V(27.5, -104.5, 0), V(0, 0, 1), 1.5), False)
sketch9.addGeometry(Part.Circle(V(-82.5, -104.5, 0), V(0, 0, 1), 1.5), False)
sketch9.addGeometry(Part.Circle(V(-82.5, -19.5, 0), V(0, 0, 1), 1.5), False)
sketch9.addConstraint(Sketcher.Constraint("Equal", 0, 1))
sketch9.addConstraint(Sketcher.Constraint("Equal", 1, 2))
sketch9.addConstraint(Sketcher.Constraint("Equal", 2, 3))
sketch9.addConstraint(Sketcher.Constraint("Horizontal", 1, 3, 2, 3))
sketch9.addConstraint(Sketcher.Constraint("Horizontal", 0, 3, 3, 3))
sketch9.addConstraint(Sketcher.Constraint("Vertical", 0, 3, 1, 3))
sketch9.addConstraint(Sketcher.Constraint("Vertical", 2, 3, 3, 3))
sketch9.addConstraint(Sketcher.Constraint("Diameter", 0, 3.0))
sketch9.addConstraint(Sketcher.Constraint("DistanceY", 1, 3, 0, 3, 85.0))
sketch9.addConstraint(Sketcher.Constraint("DistanceX", 2, 3, 1, 3, 110.0))
sketch9.addConstraint(Sketcher.Constraint("DistanceY", 0, 3, -1, 1, 19.5))
sketch9.addConstraint(Sketcher.Constraint("DistanceX", -1, 1, 0, 3, 27.534811))
pocket2 = doc.addObject("PartDesign::Pocket", "Pocket001")
body.addObject(pocket2)
pocket2.Profile = sketch9
pocket2.Type = "ThroughAll"
pocket2.Reversed = True

doc.recompute()
